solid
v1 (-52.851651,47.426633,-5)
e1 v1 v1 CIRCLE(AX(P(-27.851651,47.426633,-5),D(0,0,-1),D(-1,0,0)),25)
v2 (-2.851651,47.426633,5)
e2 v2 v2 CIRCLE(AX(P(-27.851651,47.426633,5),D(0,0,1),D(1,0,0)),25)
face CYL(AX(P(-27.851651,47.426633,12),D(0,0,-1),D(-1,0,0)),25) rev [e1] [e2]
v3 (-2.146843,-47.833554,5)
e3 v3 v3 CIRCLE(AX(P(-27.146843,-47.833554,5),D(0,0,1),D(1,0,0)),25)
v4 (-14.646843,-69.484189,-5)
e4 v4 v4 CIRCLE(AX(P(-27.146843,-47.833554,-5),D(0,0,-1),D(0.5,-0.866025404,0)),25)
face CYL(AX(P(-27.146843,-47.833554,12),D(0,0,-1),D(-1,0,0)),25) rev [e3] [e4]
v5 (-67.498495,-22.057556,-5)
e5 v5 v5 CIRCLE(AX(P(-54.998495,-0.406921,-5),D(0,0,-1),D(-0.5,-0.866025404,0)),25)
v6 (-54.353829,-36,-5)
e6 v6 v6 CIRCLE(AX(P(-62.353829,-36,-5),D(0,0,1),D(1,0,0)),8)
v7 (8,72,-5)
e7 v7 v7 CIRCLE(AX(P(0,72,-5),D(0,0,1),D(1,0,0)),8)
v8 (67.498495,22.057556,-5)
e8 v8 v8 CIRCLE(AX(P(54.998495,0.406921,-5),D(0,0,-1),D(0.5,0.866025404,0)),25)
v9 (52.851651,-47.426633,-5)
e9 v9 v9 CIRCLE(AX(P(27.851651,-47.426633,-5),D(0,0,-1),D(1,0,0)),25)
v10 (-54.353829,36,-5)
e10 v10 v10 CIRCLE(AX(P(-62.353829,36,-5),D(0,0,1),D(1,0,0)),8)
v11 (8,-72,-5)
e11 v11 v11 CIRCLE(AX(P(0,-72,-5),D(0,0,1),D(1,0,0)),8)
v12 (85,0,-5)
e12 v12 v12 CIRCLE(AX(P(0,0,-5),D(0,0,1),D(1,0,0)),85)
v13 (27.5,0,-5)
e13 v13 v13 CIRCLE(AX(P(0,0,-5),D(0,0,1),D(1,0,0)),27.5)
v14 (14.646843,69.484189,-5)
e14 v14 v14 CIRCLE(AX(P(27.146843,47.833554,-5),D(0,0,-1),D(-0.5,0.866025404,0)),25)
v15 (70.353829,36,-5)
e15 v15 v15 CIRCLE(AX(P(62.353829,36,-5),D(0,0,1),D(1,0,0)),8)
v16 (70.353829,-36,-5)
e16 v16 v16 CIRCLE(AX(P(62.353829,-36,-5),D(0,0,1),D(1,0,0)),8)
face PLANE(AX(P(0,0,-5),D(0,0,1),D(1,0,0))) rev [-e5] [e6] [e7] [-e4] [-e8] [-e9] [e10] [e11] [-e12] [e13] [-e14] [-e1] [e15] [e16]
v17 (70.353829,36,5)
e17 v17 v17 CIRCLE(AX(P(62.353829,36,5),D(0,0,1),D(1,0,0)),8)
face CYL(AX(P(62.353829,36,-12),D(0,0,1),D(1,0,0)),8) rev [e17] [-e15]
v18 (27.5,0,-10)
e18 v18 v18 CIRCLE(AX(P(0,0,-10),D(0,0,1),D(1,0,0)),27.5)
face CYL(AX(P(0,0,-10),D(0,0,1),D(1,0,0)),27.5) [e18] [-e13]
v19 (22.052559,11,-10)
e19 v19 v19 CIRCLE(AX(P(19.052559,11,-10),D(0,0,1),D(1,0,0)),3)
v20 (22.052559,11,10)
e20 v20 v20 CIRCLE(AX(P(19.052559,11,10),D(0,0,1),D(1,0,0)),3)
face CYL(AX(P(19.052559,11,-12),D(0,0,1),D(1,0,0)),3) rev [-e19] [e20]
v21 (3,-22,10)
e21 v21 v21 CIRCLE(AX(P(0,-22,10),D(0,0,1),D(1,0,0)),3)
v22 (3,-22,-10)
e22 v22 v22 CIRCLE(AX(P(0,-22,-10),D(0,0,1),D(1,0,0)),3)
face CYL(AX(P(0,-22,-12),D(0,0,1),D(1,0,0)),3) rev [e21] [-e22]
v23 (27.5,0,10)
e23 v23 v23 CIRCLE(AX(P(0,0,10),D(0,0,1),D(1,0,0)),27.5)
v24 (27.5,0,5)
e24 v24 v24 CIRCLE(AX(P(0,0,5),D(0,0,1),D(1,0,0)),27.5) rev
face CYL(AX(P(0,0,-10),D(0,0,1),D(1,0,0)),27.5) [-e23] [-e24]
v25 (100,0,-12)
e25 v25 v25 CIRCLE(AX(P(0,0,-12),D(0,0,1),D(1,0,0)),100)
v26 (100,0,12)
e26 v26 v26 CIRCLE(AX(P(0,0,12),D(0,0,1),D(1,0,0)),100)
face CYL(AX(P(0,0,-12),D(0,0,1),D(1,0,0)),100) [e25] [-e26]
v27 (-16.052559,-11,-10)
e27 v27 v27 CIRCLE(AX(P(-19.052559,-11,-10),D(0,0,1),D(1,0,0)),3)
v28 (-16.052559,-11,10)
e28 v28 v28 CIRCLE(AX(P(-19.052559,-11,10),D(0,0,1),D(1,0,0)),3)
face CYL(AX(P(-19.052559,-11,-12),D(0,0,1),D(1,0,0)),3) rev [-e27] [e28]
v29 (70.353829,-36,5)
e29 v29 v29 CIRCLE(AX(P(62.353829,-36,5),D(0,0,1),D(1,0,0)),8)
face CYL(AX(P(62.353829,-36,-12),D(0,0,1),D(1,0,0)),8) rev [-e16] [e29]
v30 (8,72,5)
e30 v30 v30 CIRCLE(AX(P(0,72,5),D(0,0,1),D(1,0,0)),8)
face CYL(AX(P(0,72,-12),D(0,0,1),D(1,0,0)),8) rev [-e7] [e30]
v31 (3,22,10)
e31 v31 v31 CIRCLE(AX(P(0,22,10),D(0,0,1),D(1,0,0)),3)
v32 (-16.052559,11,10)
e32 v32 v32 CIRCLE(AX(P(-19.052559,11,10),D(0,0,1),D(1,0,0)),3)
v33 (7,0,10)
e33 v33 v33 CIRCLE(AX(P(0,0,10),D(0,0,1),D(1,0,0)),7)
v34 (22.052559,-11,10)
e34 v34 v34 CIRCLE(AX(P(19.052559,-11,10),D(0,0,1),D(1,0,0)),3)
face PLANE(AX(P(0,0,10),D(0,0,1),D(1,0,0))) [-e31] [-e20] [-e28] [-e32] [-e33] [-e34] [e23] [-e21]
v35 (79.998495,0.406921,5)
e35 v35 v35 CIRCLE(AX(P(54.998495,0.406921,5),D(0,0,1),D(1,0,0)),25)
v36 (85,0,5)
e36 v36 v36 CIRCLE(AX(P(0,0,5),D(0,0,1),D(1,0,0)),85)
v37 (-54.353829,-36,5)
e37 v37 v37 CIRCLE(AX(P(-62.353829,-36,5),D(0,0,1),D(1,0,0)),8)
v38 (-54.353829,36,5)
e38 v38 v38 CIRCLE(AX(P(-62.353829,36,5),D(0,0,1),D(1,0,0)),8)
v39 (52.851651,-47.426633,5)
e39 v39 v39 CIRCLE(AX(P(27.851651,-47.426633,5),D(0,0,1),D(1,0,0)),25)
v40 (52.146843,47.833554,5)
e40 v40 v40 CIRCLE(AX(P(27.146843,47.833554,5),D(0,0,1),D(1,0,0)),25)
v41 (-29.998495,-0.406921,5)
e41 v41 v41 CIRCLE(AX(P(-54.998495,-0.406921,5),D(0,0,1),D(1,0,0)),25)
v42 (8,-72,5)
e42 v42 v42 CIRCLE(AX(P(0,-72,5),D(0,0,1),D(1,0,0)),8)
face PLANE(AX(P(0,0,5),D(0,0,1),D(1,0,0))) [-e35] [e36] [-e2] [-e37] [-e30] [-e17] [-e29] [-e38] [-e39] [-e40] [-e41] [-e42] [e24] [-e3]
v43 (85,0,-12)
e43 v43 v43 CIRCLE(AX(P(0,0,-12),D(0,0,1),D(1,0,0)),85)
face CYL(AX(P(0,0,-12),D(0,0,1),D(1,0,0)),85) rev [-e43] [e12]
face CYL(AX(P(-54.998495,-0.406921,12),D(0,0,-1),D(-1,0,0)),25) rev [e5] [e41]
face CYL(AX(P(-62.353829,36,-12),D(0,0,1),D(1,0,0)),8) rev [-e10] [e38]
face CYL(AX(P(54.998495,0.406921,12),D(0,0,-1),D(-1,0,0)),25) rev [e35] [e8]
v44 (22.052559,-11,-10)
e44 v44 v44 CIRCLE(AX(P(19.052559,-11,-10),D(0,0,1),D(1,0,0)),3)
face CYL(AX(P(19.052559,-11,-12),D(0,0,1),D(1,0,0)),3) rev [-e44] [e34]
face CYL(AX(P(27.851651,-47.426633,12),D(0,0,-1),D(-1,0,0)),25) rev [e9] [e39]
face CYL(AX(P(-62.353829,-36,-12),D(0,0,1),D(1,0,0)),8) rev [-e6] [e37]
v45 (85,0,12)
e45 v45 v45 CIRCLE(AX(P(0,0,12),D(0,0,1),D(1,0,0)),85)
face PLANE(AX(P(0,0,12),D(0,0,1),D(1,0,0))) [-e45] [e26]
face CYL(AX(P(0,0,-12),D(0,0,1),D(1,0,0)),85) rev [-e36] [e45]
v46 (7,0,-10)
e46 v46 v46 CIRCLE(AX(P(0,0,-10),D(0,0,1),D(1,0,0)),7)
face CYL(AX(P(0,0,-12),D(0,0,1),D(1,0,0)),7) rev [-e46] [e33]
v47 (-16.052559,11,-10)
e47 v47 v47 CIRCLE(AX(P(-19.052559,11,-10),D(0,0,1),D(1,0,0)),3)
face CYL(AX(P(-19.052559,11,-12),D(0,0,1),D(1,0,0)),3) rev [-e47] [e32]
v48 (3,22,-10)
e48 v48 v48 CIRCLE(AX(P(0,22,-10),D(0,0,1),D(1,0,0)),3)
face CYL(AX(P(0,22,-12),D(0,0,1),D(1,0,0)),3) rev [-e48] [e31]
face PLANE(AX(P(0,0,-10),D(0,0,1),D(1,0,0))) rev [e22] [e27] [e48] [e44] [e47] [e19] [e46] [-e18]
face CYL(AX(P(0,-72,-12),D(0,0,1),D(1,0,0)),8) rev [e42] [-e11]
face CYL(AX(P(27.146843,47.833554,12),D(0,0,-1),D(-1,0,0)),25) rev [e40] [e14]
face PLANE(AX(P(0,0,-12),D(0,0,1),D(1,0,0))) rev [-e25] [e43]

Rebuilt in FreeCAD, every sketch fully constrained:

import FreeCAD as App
import Part
import Sketcher

V = App.Vector

doc = App.newDocument("Part")
body = doc.addObject("PartDesign::Body", "Body")

# Sketch on XY plane
sketch1 = body.newObject("Sketcher::SketchObject", "Sketch")
sketch1.AttachmentSupport = (doc.getObject("XY_Plane"), [""])
sketch1.MapMode = "FlatFace"
sketch1.addGeometry(Part.Circle(V(0, 0, 0), V(0, 0, 1), 28), False)
sketch1.addConstraint([
    Sketcher.Constraint("Coincident", 0, 3, -1, 1),
    Sketcher.Constraint("Diameter", 0, 55.0),
])
pad1 = body.newObject("PartDesign::Pad", "Pad")
pad1.Profile = sketch1
pad1.Type = "TwoLengths"
pad1.Length = 10
pad1.Length2 = 10
body2 = doc.addObject("PartDesign::Body", "Body001")

# Sketch on XY plane
sketch2 = body2.newObject("Sketcher::SketchObject", "Sketch001")
sketch2.AttachmentSupport = (doc.getObject("XY_Plane001"), [""])
sketch2.MapMode = "FlatFace"
sketch2.addGeometry([
    Part.Circle(V(0, 0, 0), V(0, 0, 1), 100),
    Part.Circle(V(0, 0, 0), V(0, 0, 1), 85),
], False)
sketch2.addConstraint([
    Sketcher.Constraint("Coincident", 0, 3, -1, 1),
    Sketcher.Constraint("Coincident", 1, 3, -1, 1),
    Sketcher.Constraint("Diameter", 0, 200.0),
    Sketcher.Constraint("Diameter", 1, 170.0),
])
pad2 = body2.newObject("PartDesign::Pad", "Pad001")
pad2.Profile = sketch2
pad2.Type = "TwoLengths"
pad2.Length = 12
pad2.Length2 = 12
body.AllowCompound = True
doc.recompute()

boolean = body.newObject("PartDesign::Boolean", "Boolean")
boolean.Type = "Fuse"
boolean.addObjects([body2])

# Sketch on XY plane
sketch3 = body.newObject("Sketcher::SketchObject", "Sketch002")
sketch3.AttachmentSupport = (doc.getObject("XY_Plane"), [""])
sketch3.MapMode = "FlatFace"
sketch3.addGeometry([
    Part.Circle(V(0, 0, 0), V(0, 0, 1), 85),
    Part.Circle(V(0, 0, 0), V(0, 0, 1), 28),
], False)
sketch3.addConstraint([
    Sketcher.Constraint("Coincident", 0, 3, -1, 1),
    Sketcher.Constraint("Coincident", 1, 3, -1, 1),
    Sketcher.Constraint("Diameter", 0, 170.0),
    Sketcher.Constraint("Diameter", 1, 55.0),
])
pad3 = body.newObject("PartDesign::Pad", "Pad002")
pad3.Profile = sketch3
pad3.Type = "TwoLengths"
pad3.Length = 5
pad3.Length2 = 5

# Sketch on XY plane
sketch4 = body.newObject("Sketcher::SketchObject", "Sketch003")
sketch4.AttachmentSupport = (doc.getObject("XY_Plane"), [""])
sketch4.MapMode = "FlatFace"
sketch4.AttachmentOffset = App.Placement(V(0, 0, 10), App.Rotation())
sketch4.addGeometry(Part.Circle(V(0, 0, 0), V(0, 0, 1), 7), False)
sketch4.addConstraint([
    Sketcher.Constraint("Coincident", 0, 3, -1, 1),
    Sketcher.Constraint("Diameter", 0, 14.0),
])
pocket1 = body.newObject("PartDesign::Pocket", "Pocket")
pocket1.Profile = sketch4
pocket1.Type = "ThroughAll"

# Sketch on XY plane
sketch5 = body.newObject("Sketcher::SketchObject", "Sketch004")
sketch5.AttachmentSupport = (doc.getObject("XY_Plane"), [""])
sketch5.MapMode = "FlatFace"
sketch5.AttachmentOffset = App.Placement(V(0, 0, 10), App.Rotation())
sketch5.addGeometry([
    Part.Circle(V(0, 22, 0), V(0, 0, 1), 3),  # 0
    Part.Circle(V(0, 72, 0), V(0, 0, 1), 8),  # 1
    Part.Circle(V(62.4, 36, 0), V(0, 0, 1), 8),  # 2
    Part.Circle(V(19.1, 11, 0), V(0, 0, 1), 3),  # 3
    Part.Circle(V(62.4, -36, 0), V(0, 0, 1), 8),  # 4
    Part.Circle(V(19.1, -11, 0), V(0, 0, 1), 3),  # 5
    Part.Circle(V(0, -72, 0), V(0, 0, 1), 8),  # 6
    Part.Circle(V(0, -22, 0), V(0, 0, 1), 3),  # 7
    Part.Circle(V(-62.4, -36, 0), V(0, 0, 1), 8),  # 8
    Part.Circle(V(-19.1, -11, 0), V(0, 0, 1), 3),  # 9
    Part.Circle(V(-62.4, 36, 0), V(0, 0, 1), 8),  # 10
    Part.Circle(V(-19.1, 11, 0), V(0, 0, 1), 3),  # 11
], False)
sketch5.addConstraint([
    Sketcher.Constraint("Equal", 1, 2),
    Sketcher.Constraint("Equal", 0, 3),
    Sketcher.Constraint("Equal", 2, 4),
    Sketcher.Constraint("Equal", 3, 5),
    Sketcher.Constraint("Equal", 4, 6),
    Sketcher.Constraint("Equal", 5, 7),
    Sketcher.Constraint("Equal", 6, 8),
    Sketcher.Constraint("Equal", 7, 9),
    Sketcher.Constraint("Equal", 8, 10),
    Sketcher.Constraint("Equal", 9, 11),
    Sketcher.Constraint("Symmetric", 1, 3, 6, 3, -1, 1),
    Sketcher.Constraint("Symmetric", 0, 3, 7, 3, -1, 1),
    Sketcher.Constraint("Symmetric", 2, 3, 8, 3, -1, 1),
    Sketcher.Constraint("Symmetric", 3, 3, 9, 3, -1, 1),
    Sketcher.Constraint("Symmetric", 4, 3, 10, 3, -1, 1),
    Sketcher.Constraint("Symmetric", 5, 3, 11, 3, -1, 1),
    Sketcher.Constraint("Symmetric", 4, 3, 8, 3, -2),
    Sketcher.Constraint("Symmetric", 5, 3, 9, 3, -2),
    Sketcher.Constraint("PointOnObject", 0, 3, -2),
    Sketcher.Constraint("PointOnObject", 1, 3, -2),
    Sketcher.Constraint("Diameter", 0, 6.0),
    Sketcher.Constraint("Diameter", 1, 16.0),
    Sketcher.Constraint("DistanceY", -1, 1, 0, 3, 22.0),
    Sketcher.Constraint("DistanceY", -1, 1, 1, 3, 72.0),
    Sketcher.Constraint("DistanceY", -1, 1, 2, 3, 36.0),
    Sketcher.Constraint("DistanceY", -1, 1, 3, 3, 11.0),
    Sketcher.Constraint("DistanceX", -1, 1, 2, 3, 62.353829),
    Sketcher.Constraint("DistanceX", -1, 1, 3, 3, 19.052559),
])
pocket2 = body.newObject("PartDesign::Pocket", "Pocket001")
pocket2.Profile = sketch5
pocket2.Type = "ThroughAll"

# Sketch on XY plane
sketch6 = body.newObject("Sketcher::SketchObject", "Sketch005")
sketch6.AttachmentSupport = (doc.getObject("XY_Plane"), [""])
sketch6.MapMode = "FlatFace"
sketch6.AttachmentOffset = App.Placement(V(0, 0, -5), App.Rotation())
sketch6.addGeometry(Part.Circle(V(-28, 47, 0), V(0, 0, 1), 25), False)
sketch6.addConstraint([
    Sketcher.Constraint("Diameter", 0, 50.0),
    Sketcher.Constraint("DistanceX", 0, 3, -1, 1, 27.851651),
    Sketcher.Constraint("DistanceY", -1, 1, 0, 3, 47.426633),
])
pocket3 = body.newObject("PartDesign::Pocket", "Pocket002")
pocket3.Profile = sketch6
pocket3.Type = "ThroughAll"
pocket3.Reversed = True
doc.recompute()

polarpattern = body.newObject("PartDesign::PolarPattern", "PolarPattern")
polarpattern.Originals = [pocket3]
polarpattern.Axis = (doc.getObject("Z_Axis"), [""])
polarpattern.Angle = 360
polarpattern.Occurrences = 6
body.Tip = polarpattern

doc.recompute()
